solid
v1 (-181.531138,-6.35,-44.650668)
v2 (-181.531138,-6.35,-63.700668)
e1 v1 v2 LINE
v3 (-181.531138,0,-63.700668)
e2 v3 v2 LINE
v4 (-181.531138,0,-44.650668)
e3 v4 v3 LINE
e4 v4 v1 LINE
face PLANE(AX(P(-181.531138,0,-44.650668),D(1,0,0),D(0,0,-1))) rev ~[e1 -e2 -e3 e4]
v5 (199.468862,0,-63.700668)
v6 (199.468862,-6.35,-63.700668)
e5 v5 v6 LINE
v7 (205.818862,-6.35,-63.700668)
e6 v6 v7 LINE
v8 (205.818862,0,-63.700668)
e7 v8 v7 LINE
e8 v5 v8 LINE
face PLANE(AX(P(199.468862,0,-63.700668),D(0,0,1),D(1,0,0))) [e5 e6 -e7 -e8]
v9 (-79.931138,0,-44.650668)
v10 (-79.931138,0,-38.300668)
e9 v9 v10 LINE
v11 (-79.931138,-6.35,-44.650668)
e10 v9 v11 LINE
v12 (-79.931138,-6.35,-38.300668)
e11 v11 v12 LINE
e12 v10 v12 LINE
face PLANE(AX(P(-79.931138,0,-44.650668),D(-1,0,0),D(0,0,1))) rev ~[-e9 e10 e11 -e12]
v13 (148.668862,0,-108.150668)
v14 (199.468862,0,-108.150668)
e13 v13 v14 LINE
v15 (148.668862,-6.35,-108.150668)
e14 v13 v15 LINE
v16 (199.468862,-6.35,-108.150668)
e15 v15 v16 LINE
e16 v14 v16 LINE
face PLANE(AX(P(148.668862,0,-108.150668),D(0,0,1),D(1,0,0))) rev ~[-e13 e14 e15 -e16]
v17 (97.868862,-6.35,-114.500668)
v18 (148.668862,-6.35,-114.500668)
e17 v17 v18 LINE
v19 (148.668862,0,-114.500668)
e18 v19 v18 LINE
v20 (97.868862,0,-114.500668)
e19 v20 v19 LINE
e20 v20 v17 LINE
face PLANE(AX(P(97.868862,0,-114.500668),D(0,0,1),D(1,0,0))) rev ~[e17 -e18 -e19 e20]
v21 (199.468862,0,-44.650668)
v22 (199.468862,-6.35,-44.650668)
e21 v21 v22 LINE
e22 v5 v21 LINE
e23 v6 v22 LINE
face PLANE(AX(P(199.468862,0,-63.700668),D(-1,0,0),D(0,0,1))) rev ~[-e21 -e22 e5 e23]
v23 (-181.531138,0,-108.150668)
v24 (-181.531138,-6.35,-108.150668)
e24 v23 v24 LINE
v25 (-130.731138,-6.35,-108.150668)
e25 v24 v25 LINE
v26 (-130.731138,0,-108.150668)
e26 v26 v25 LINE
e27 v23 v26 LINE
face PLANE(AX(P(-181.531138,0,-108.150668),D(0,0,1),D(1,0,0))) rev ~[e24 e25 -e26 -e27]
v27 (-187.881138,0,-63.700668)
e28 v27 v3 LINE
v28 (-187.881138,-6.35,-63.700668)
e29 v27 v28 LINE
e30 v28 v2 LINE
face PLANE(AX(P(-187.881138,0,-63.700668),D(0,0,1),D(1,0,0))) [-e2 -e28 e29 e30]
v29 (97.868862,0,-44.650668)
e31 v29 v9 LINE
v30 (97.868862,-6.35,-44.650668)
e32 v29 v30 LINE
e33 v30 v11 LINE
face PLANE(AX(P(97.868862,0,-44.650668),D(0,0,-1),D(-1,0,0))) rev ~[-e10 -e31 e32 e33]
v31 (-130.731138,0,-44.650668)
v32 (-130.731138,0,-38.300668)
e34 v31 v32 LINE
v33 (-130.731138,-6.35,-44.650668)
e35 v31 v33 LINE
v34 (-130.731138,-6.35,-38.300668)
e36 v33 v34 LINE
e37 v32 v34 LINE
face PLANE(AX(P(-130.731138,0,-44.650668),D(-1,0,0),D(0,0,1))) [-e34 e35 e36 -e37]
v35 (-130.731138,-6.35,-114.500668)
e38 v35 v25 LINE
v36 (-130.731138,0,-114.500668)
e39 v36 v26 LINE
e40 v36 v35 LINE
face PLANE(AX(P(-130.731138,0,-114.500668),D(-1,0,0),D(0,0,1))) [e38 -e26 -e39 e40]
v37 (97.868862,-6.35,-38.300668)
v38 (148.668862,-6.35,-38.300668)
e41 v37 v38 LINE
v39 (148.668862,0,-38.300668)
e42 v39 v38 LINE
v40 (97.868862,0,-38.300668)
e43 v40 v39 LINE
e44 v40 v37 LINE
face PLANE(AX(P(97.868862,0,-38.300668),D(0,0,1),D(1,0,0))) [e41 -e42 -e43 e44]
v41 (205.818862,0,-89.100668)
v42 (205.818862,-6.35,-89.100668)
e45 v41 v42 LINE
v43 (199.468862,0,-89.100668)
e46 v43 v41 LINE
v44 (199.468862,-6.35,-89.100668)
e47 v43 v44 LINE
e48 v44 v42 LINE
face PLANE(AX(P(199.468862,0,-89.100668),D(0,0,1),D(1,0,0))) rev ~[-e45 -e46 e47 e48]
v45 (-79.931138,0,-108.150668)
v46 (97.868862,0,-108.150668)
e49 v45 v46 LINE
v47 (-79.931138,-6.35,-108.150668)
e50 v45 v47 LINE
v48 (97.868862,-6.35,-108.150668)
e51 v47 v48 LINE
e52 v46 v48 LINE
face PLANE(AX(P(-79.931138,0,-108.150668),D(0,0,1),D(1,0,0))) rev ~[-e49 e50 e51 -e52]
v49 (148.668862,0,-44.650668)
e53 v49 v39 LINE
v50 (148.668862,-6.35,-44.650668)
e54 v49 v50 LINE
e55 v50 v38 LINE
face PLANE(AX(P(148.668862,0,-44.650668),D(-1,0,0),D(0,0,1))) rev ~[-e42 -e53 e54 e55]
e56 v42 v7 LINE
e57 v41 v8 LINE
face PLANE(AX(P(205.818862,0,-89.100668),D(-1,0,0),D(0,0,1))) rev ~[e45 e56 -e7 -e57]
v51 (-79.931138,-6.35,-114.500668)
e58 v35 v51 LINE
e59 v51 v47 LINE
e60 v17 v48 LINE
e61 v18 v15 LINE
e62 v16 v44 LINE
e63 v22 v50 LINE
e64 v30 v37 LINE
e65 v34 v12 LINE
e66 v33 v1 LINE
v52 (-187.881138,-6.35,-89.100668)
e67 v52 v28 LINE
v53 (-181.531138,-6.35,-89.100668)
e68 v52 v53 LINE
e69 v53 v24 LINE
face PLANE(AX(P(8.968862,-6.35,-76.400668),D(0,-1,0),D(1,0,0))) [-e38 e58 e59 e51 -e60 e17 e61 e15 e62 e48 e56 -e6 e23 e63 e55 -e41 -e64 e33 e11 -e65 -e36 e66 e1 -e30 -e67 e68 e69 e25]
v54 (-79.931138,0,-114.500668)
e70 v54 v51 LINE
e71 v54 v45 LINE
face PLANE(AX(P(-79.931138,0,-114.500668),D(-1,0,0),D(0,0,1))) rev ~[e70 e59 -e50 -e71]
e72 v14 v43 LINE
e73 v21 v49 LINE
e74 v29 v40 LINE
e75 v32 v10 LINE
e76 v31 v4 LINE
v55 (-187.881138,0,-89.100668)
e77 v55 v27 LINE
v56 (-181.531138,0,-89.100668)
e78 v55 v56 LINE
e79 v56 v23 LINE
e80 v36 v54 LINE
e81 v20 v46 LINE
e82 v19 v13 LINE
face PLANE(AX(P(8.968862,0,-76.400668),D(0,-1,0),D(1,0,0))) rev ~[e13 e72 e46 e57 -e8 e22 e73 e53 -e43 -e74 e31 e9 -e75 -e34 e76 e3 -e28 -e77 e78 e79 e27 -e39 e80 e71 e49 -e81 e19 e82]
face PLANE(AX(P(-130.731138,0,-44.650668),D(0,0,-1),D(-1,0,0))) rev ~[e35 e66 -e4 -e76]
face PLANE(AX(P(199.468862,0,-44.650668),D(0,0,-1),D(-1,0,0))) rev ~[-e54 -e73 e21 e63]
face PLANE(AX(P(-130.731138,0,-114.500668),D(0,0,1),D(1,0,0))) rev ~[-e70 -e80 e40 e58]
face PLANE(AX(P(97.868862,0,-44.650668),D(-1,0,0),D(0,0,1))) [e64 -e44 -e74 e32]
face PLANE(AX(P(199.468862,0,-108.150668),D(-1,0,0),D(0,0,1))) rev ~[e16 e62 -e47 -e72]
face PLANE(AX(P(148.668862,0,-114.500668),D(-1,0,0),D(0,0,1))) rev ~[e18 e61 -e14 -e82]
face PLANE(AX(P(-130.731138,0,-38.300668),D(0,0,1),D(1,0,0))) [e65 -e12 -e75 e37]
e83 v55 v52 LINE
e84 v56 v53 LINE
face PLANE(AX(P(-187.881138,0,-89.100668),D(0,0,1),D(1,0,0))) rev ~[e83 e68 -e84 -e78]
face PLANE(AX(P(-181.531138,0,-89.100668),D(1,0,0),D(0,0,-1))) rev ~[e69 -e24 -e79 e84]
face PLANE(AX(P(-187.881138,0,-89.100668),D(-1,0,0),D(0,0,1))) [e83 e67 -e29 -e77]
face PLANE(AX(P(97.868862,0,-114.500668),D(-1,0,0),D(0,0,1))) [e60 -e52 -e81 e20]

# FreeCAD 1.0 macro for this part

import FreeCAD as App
import Part
import Sketcher

V = App.Vector
Q = App.Units.Quantity

doc = App.newDocument("Part")
body = doc.addObject("PartDesign::Body", "Body")

sketch1 = body.newObject("Sketcher::SketchObject", "Sketch")
sketch1.AttachmentSupport = (doc.getObject("XZ_Plane"), [""])
sketch1.MapMode = "FlatFace"
sketch1.addGeometry(Part.LineSegment(V(-182, -108, 0), V(-131, -108, 0)), False)
sketch1.addGeometry(Part.LineSegment(V(-131, -108, 0), V(-131, -115, 0)), False)
sketch1.addGeometry(Part.LineSegment(V(-131, -115, 0), V(-80, -115, 0)), False)
sketch1.addGeometry(Part.LineSegment(V(-80, -115, 0), V(-80, -108, 0)), False)
sketch1.addGeometry(Part.LineSegment(V(-80, -108, 0), V(98, -108, 0)), False)
sketch1.addGeometry(Part.LineSegment(V(98, -108, 0), V(98, -115, 0)), False)
sketch1.addGeometry(Part.LineSegment(V(98, -115, 0), V(149, -115, 0)), False)
sketch1.addGeometry(Part.LineSegment(V(149, -115, 0), V(149, -108, 0)), False)
sketch1.addGeometry(Part.LineSegment(V(149, -108, 0), V(199, -108, 0)), False)
sketch1.addGeometry(Part.LineSegment(V(199, -108, 0), V(199, -89, 0)), False)
sketch1.addGeometry(Part.LineSegment(V(199, -89, 0), V(206, -89, 0)), False)
sketch1.addGeometry(Part.LineSegment(V(206, -89, 0), V(206, -64, 0)), False)
sketch1.addGeometry(Part.LineSegment(V(206, -64, 0), V(199, -64, 0)), False)
sketch1.addGeometry(Part.LineSegment(V(199, -64, 0), V(199, -45, 0)), False)
sketch1.addGeometry(Part.LineSegment(V(199, -45, 0), V(149, -45, 0)), False)
sketch1.addGeometry(Part.LineSegment(V(149, -45, 0), V(149, -38, 0)), False)
sketch1.addGeometry(Part.LineSegment(V(149, -38, 0), V(98, -38, 0)), False)
sketch1.addGeometry(Part.LineSegment(V(98, -38, 0), V(98, -45, 0)), False)
sketch1.addGeometry(Part.LineSegment(V(98, -45, 0), V(-80, -45, 0)), False)
sketch1.addGeometry(Part.LineSegment(V(-80, -45, 0), V(-80, -38, 0)), False)
sketch1.addGeometry(Part.LineSegment(V(-80, -38, 0), V(-131, -38, 0)), False)
sketch1.addGeometry(Part.LineSegment(V(-131, -38, 0), V(-131, -45, 0)), False)
sketch1.addGeometry(Part.LineSegment(V(-131, -45, 0), V(-182, -45, 0)), False)
sketch1.addGeometry(Part.LineSegment(V(-182, -45, 0), V(-182, -64, 0)), False)
sketch1.addGeometry(Part.LineSegment(V(-182, -64, 0), V(-188, -64, 0)), False)
sketch1.addGeometry(Part.LineSegment(V(-188, -64, 0), V(-188, -89, 0)), False)
sketch1.addGeometry(Part.LineSegment(V(-188, -89, 0), V(-182, -89, 0)), False)
sketch1.addGeometry(Part.LineSegment(V(-182, -89, 0), V(-182, -108, 0)), False)
sketch1.addConstraint(Sketcher.Constraint("Coincident", 0, 2, 1, 1))
sketch1.addConstraint(Sketcher.Constraint("Coincident", 1, 2, 2, 1))
sketch1.addConstraint(Sketcher.Constraint("Coincident", 2, 2, 3, 1))
sketch1.addConstraint(Sketcher.Constraint("Coincident", 3, 2, 4, 1))
sketch1.addConstraint(Sketcher.Constraint("Coincident", 4, 2, 5, 1))
sketch1.addConstraint(Sketcher.Constraint("Coincident", 5, 2, 6, 1))
sketch1.addConstraint(Sketcher.Constraint("Coincident", 6, 2, 7, 1))
sketch1.addConstraint(Sketcher.Constraint("Coincident", 7, 2, 8, 1))
sketch1.addConstraint(Sketcher.Constraint("Coincident", 8, 2, 9, 1))
sketch1.addConstraint(Sketcher.Constraint("Coincident", 9, 2, 10, 1))
sketch1.addConstraint(Sketcher.Constraint("Coincident", 10, 2, 11, 1))
sketch1.addConstraint(Sketcher.Constraint("Coincident", 11, 2, 12, 1))
sketch1.addConstraint(Sketcher.Constraint("Coincident", 12, 2, 13, 1))
sketch1.addConstraint(Sketcher.Constraint("Coincident", 13, 2, 14, 1))
sketch1.addConstraint(Sketcher.Constraint("Coincident", 14, 2, 15, 1))
sketch1.addConstraint(Sketcher.Constraint("Coincident", 15, 2, 16, 1))
sketch1.addConstraint(Sketcher.Constraint("Coincident", 16, 2, 17, 1))
sketch1.addConstraint(Sketcher.Constraint("Coincident", 17, 2, 18, 1))
sketch1.addConstraint(Sketcher.Constraint("Coincident", 18, 2, 19, 1))
sketch1.addConstraint(Sketcher.Constraint("Coincident", 19, 2, 20, 1))
sketch1.addConstraint(Sketcher.Constraint("Coincident", 20, 2, 21, 1))
sketch1.addConstraint(Sketcher.Constraint("Coincident", 21, 2, 22, 1))
sketch1.addConstraint(Sketcher.Constraint("Coincident", 22, 2, 23, 1))
sketch1.addConstraint(Sketcher.Constraint("Coincident", 23, 2, 24, 1))
sketch1.addConstraint(Sketcher.Constraint("Coincident", 24, 2, 25, 1))
sketch1.addConstraint(Sketcher.Constraint("Coincident", 25, 2, 26, 1))
sketch1.addConstraint(Sketcher.Constraint("Coincident", 26, 2, 27, 1))
sketch1.addConstraint(Sketcher.Constraint("Coincident", 27, 2, 0, 1))
sketch1.addConstraint(Sketcher.Constraint("Horizontal", 0))
sketch1.addConstraint(Sketcher.Constraint("Vertical", 1))
sketch1.addConstraint(Sketcher.Constraint("Horizontal", 2))
sketch1.addConstraint(Sketcher.Constraint("Vertical", 3))
sketch1.addConstraint(Sketcher.Constraint("Horizontal", 4))
sketch1.addConstraint(Sketcher.Constraint("Vertical", 5))
sketch1.addConstraint(Sketcher.Constraint("Horizontal", 6))
sketch1.addConstraint(Sketcher.Constraint("Vertical", 7))
sketch1.addConstraint(Sketcher.Constraint("Horizontal", 8))
sketch1.addConstraint(Sketcher.Constraint("Vertical", 9))
sketch1.addConstraint(Sketcher.Constraint("Horizontal", 10))
sketch1.addConstraint(Sketcher.Constraint("Vertical", 11))
sketch1.addConstraint(Sketcher.Constraint("Horizontal", 12))
sketch1.addConstraint(Sketcher.Constraint("Vertical", 13))
sketch1.addConstraint(Sketcher.Constraint("Horizontal", 14))
sketch1.addConstraint(Sketcher.Constraint("Vertical", 15))
sketch1.addConstraint(Sketcher.Constraint("Horizontal", 16))
sketch1.addConstraint(Sketcher.Constraint("Vertical", 17))
sketch1.addConstraint(Sketcher.Constraint("Horizontal", 18))
sketch1.addConstraint(Sketcher.Constraint("Vertical", 19))
sketch1.addConstraint(Sketcher.Constraint("Horizontal", 20))
sketch1.addConstraint(Sketcher.Constraint("Vertical", 21))
sketch1.addConstraint(Sketcher.Constraint("Horizontal", 22))
sketch1.addConstraint(Sketcher.Constraint("Vertical", 23))
sketch1.addConstraint(Sketcher.Constraint("Horizontal", 24))
sketch1.addConstraint(Sketcher.Constraint("Vertical", 25))
sketch1.addConstraint(Sketcher.Constraint("Horizontal", 26))
sketch1.addConstraint(Sketcher.Constraint("Vertical", 27))
sketch1.addConstraint(Sketcher.Constraint("Horizontal", 0, 2, 3, 2))
sketch1.addConstraint(Sketcher.Constraint("Horizontal", 2, 2, 5, 2))
sketch1.addConstraint(Sketcher.Constraint("Horizontal", 4, 2, 7, 2))
sketch1.addConstraint(Sketcher.Constraint("Horizontal", 14, 2, 17, 2))
sketch1.addConstraint(Sketcher.Constraint("Horizontal", 16, 2, 19, 2))
sketch1.addConstraint(Sketcher.Constraint("Horizontal", 18, 2, 21, 2))
sketch1.addConstraint(Sketcher.Constraint("Horizontal", 12, 2, 23, 2))
sketch1.addConstraint(Sketcher.Constraint("Horizontal", 10, 2, 25, 2))
sketch1.addConstraint(Sketcher.Constraint("Vertical", 9, 2, 12, 2))
sketch1.addConstraint(Sketcher.Constraint("Vertical", 7, 2, 14, 2))
sketch1.addConstraint(Sketcher.Constraint("Vertical", 5, 2, 16, 2))
sketch1.addConstraint(Sketcher.Constraint("Vertical", 3, 2, 18, 2))
sketch1.addConstraint(Sketcher.Constraint("Vertical", 1, 2, 20, 2))
sketch1.addConstraint(Sketcher.Constraint("Vertical", 23, 2, 26, 2))
sketch1.addConstraint(Sketcher.Constraint("Equal", 0, 2))
sketch1.addConstraint(Sketcher.Constraint("Equal", 2, 6))
sketch1.addConstraint(Sketcher.Constraint("Equal", 6, 8))
sketch1.addConstraint(Sketcher.Constraint("Equal", 12, 24))
sketch1.addConstraint(Sketcher.Constraint("Equal", 26, 1))
sketch1.addConstraint(Sketcher.Constraint("Equal", 9, 13))
sketch1.addConstraint(Sketcher.Constraint("Equal", 7, 15))
sketch1.addConstraint(Sketcher.Constraint("DistanceX", 0, 1, 0, 2, Q("2 in")))
sketch1.addConstraint(Sketcher.Constraint("DistanceX", 4, 1, 4, 2, Q("7 in")))
sketch1.addConstraint(Sketcher.Constraint("DistanceY", 11, 1, 11, 2, Q("1 in")))
sketch1.addConstraint(Sketcher.Constraint("DistanceY", 6, 2, 9, 2, Q("1 in")))
sketch1.addConstraint(Sketcher.Constraint("DistanceX", 10, 1, 10, 2, Q("0.25 in")))
sketch1.addConstraint(Sketcher.Constraint("DistanceY", 1, 2, -1, 1, 114.500668))
sketch1.addConstraint(Sketcher.Constraint("DistanceX", 2, 2, -1, 1, 79.931138))
pad1 = body.newObject("PartDesign::Pad", "Pad")
pad1.Profile = sketch1
pad1.Length = Q("0.25 in")

doc.recompute()
